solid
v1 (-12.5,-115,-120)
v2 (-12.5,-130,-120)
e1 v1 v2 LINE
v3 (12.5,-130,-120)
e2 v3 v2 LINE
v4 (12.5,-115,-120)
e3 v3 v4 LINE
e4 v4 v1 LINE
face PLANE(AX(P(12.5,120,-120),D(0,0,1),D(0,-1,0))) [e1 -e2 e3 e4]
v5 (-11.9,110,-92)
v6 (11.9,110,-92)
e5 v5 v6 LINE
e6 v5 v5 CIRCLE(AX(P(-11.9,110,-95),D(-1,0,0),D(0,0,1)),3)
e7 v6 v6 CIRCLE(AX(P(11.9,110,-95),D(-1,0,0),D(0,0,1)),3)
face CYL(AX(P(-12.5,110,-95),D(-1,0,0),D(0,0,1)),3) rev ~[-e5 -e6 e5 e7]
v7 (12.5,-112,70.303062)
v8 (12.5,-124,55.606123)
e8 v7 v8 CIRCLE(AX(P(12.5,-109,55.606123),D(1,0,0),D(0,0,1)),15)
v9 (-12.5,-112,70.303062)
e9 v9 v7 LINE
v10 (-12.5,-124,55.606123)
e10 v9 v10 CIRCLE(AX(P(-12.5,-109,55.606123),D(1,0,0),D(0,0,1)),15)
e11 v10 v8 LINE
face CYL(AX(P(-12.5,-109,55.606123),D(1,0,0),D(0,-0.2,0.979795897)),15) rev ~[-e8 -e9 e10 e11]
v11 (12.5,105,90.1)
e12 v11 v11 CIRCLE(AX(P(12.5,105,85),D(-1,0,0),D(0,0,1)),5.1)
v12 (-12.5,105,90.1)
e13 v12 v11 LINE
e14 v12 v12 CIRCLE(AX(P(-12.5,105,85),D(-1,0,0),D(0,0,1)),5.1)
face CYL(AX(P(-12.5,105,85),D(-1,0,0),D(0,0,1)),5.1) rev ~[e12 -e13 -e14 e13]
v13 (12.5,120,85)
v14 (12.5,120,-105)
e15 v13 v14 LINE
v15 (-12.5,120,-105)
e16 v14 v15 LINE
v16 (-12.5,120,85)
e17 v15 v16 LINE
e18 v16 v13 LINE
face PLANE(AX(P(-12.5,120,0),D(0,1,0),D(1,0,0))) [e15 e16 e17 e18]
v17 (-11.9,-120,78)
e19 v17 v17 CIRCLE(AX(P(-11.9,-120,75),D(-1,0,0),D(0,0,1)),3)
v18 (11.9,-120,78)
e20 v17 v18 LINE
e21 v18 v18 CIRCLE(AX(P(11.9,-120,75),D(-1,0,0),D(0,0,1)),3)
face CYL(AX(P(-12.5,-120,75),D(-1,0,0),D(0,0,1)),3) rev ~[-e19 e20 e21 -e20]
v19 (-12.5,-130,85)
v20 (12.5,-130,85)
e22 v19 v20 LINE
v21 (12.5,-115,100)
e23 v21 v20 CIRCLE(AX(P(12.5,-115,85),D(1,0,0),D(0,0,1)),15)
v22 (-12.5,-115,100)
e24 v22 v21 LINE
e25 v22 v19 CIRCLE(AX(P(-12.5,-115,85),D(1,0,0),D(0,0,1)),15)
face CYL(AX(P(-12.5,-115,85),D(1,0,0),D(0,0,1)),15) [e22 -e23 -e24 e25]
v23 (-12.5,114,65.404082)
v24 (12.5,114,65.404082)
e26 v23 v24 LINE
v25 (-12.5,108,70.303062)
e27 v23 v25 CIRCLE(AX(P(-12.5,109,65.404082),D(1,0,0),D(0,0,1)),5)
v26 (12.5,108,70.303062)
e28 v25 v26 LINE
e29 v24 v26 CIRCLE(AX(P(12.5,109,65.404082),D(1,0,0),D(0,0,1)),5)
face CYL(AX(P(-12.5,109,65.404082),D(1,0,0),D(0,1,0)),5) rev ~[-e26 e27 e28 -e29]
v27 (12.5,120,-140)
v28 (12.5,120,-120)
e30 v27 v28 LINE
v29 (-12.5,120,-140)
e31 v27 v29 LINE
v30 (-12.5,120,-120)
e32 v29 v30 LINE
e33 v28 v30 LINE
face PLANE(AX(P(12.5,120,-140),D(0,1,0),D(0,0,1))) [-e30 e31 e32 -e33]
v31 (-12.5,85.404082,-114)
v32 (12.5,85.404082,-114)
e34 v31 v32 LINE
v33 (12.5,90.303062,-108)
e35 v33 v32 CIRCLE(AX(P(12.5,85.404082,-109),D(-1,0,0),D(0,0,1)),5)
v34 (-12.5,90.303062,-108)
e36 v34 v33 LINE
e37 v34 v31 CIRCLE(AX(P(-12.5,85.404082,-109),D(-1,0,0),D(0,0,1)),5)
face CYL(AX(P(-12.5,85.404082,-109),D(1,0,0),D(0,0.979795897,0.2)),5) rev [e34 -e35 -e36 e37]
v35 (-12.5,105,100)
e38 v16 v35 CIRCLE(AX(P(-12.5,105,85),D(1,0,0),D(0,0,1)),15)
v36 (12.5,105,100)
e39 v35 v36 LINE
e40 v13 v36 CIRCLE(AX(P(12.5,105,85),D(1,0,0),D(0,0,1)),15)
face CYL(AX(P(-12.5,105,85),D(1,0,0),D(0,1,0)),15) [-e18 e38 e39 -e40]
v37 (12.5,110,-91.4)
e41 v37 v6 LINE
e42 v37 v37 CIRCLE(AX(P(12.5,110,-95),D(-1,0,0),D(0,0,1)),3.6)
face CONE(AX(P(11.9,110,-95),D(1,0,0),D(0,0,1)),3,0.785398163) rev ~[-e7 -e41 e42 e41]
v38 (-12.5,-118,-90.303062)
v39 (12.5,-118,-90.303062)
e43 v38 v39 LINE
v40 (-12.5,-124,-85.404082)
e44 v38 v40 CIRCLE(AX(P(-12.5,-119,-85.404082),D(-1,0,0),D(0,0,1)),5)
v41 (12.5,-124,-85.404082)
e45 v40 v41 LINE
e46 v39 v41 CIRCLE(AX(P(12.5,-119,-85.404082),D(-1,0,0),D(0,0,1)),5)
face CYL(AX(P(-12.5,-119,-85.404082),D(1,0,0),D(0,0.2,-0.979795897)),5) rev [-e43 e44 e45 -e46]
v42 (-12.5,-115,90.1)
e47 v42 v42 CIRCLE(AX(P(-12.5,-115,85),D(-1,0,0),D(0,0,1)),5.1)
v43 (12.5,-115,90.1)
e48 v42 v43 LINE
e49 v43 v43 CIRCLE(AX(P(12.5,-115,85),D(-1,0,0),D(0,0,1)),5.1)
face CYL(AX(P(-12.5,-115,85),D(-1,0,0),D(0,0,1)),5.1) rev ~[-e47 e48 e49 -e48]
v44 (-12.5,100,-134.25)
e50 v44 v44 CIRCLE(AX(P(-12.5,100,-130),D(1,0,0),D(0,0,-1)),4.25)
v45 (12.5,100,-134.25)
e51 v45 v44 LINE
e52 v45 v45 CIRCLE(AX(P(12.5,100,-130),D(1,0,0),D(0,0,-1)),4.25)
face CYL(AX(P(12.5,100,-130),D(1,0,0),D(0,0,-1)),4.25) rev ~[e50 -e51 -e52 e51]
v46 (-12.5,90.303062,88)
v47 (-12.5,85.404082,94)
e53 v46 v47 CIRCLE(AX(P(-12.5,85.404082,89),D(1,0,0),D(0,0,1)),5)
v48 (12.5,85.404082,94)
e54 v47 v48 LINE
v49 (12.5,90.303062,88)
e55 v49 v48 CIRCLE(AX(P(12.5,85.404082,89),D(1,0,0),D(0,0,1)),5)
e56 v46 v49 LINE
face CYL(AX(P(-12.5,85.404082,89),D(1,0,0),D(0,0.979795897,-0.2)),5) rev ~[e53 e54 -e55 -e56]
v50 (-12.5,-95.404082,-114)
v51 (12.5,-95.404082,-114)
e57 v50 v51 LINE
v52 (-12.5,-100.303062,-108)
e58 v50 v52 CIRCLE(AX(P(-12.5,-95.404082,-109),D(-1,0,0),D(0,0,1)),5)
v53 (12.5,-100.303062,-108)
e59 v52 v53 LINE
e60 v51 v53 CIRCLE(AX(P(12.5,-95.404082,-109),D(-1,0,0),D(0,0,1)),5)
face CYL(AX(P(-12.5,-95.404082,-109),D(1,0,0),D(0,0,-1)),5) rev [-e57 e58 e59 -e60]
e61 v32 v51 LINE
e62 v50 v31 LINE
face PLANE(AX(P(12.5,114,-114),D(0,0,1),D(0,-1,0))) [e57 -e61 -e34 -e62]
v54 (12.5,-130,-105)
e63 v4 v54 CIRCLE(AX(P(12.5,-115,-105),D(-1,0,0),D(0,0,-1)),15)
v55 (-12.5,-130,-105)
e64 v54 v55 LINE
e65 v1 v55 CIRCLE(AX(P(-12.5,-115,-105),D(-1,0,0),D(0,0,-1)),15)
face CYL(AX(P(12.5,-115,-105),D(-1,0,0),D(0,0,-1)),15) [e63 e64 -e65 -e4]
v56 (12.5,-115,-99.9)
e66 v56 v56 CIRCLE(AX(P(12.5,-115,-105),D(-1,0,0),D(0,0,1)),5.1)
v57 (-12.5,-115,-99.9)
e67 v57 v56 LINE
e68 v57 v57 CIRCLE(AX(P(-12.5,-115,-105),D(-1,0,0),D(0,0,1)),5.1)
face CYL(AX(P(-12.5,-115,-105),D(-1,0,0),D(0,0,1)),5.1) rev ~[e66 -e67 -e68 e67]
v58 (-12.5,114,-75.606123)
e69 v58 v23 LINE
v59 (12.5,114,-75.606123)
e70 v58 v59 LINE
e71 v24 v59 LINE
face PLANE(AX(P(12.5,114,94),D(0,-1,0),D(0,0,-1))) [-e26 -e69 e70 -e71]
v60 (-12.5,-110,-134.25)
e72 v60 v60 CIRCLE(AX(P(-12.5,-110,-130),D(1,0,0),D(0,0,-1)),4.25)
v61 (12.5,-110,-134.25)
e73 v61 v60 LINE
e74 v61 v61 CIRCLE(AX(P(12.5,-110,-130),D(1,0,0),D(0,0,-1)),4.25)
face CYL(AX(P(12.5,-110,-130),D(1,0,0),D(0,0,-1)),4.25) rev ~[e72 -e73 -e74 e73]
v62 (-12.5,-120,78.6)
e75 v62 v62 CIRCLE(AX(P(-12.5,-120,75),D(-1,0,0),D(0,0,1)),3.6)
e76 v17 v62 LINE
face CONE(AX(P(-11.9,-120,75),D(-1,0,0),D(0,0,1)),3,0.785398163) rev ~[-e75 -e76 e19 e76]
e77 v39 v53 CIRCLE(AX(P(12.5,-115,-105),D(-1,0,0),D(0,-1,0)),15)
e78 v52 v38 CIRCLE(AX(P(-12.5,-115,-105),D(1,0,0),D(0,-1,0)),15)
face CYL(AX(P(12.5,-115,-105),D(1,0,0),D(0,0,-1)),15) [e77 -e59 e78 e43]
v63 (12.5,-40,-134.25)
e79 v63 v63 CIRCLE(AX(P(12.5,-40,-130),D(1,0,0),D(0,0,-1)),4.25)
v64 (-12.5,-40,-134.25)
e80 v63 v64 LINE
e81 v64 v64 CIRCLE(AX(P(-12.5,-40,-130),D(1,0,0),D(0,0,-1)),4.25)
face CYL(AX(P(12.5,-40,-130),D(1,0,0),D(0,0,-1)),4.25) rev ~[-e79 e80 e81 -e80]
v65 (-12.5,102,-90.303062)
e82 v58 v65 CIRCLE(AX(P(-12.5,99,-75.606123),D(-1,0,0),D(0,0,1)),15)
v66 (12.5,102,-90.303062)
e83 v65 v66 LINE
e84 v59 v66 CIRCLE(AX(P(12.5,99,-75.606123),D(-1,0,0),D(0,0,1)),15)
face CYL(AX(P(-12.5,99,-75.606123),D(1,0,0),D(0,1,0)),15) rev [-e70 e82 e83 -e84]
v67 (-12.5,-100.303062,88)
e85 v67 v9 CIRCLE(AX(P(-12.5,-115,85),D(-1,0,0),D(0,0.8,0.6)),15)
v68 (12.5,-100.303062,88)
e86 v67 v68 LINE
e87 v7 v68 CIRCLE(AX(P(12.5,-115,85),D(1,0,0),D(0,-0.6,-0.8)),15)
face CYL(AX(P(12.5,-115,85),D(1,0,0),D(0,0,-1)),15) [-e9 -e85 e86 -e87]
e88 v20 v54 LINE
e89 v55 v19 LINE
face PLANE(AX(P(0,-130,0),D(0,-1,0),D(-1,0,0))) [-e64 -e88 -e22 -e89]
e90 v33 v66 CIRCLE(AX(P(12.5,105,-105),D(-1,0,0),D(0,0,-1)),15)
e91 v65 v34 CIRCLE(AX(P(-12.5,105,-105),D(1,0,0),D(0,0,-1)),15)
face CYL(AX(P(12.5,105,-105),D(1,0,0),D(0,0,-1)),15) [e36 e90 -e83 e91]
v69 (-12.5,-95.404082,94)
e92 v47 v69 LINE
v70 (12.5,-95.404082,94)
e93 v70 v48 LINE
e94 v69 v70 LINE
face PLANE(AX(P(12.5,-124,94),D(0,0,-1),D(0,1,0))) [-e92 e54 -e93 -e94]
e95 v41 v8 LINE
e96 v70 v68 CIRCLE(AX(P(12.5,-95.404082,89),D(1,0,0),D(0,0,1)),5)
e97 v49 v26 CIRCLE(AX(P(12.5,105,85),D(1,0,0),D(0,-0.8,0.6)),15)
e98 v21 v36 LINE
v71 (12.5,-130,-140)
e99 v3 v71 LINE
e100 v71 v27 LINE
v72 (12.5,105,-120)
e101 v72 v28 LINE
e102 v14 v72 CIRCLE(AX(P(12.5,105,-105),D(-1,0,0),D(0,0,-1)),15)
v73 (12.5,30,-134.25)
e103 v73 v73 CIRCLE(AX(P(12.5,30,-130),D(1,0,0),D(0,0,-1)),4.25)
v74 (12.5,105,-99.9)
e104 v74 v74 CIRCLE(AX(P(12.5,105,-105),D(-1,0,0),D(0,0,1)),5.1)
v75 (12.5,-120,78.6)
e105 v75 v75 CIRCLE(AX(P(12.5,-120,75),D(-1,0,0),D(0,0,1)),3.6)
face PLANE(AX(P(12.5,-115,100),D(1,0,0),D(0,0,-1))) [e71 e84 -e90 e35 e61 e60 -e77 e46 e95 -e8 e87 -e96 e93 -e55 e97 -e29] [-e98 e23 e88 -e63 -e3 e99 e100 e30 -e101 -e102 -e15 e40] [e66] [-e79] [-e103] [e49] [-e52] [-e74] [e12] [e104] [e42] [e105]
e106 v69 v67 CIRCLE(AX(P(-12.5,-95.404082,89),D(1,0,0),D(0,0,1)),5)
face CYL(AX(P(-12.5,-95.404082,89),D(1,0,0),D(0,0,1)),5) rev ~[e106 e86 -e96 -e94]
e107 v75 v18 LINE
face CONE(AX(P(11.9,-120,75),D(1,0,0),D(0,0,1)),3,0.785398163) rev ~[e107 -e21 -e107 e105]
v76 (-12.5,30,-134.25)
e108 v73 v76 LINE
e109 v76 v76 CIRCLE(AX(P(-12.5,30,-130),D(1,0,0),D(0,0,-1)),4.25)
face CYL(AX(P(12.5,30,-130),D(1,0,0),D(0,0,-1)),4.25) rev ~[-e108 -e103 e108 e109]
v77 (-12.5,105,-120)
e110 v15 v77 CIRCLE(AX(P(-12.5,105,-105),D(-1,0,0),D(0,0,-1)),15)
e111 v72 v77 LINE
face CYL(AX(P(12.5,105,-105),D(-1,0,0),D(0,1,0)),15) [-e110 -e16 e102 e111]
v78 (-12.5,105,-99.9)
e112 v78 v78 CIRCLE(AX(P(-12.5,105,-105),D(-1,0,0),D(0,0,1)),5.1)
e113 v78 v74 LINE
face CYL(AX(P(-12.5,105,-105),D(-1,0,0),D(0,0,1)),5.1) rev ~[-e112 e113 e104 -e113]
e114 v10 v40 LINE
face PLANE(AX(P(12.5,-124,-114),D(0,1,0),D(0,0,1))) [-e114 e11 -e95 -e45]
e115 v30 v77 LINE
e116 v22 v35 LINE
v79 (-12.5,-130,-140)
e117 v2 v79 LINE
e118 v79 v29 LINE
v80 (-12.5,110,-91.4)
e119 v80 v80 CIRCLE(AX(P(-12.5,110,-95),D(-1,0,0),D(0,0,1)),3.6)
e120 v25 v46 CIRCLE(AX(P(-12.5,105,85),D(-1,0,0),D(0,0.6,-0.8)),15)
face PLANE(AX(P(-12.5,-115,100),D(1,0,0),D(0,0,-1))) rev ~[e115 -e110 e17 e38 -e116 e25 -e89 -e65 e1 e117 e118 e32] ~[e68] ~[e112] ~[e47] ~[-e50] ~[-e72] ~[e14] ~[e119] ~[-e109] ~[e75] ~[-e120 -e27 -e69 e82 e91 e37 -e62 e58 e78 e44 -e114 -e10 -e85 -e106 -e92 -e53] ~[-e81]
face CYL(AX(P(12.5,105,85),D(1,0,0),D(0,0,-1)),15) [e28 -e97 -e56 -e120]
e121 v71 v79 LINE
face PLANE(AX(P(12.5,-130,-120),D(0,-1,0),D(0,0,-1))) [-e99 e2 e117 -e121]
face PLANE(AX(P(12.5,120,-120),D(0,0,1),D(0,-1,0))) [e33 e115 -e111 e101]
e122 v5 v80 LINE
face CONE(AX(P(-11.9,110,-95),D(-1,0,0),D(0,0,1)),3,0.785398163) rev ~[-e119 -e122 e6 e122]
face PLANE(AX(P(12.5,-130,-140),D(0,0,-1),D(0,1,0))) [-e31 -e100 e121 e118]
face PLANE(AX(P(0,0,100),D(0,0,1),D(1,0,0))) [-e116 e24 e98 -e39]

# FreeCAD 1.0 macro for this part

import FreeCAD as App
import Part
import Sketcher
Q = App.Units.Quantity


def edges_at(feature, points):
    """Names of the edges that pass closest to the given points."""
    edges = feature.Shape.Edges
    near = lambda p: min(range(len(edges)), key=lambda i: edges[i].distToShape(Part.Vertex(*p))[0])
    return sorted({f"Edge{near(p) + 1}" for p in points})

doc = App.newDocument("Part")
body = doc.addObject("PartDesign::Body", "Body")

# Sketch on XY plane
sketch1 = doc.addObject("Sketcher::SketchObject", "Sketch")
body.addObject(sketch1)
sketch1.AttachmentSupport = (doc.XY_Plane, [""])
sketch1.MapMode = "FlatFace"
sketch1.addGeometry([
    Part.LineSegment(App.Vector(-12, 120, 0), App.Vector(-12, -130, 0)),
    Part.LineSegment(App.Vector(-12, -130, 0), App.Vector(12, -130, 0)),
    Part.LineSegment(App.Vector(12, -130, 0), App.Vector(12, 120, 0)),
    Part.LineSegment(App.Vector(12, 120, 0), App.Vector(-12, 120, 0)),
], False)
sketch1.addConstraint([
    Sketcher.Constraint("Coincident", 0, 2, 1, 1),
    Sketcher.Constraint("Coincident", 1, 2, 2, 1),
    Sketcher.Constraint("Coincident", 2, 2, 3, 1),
    Sketcher.Constraint("Coincident", 3, 2, 0, 1),
    Sketcher.Constraint("Vertical", 0),
    Sketcher.Constraint("Horizontal", 1),
    Sketcher.Constraint("Vertical", 2),
    Sketcher.Constraint("Horizontal", 3),
    Sketcher.Constraint("DistanceX", 1, 1, 1, 2, Q("25 mm")),
    Sketcher.Constraint("DistanceY", 0, 2, 0, 1, Q("250 mm")),
    Sketcher.Constraint("DistanceY", -1, 1, 2, 2, Q("120 mm")),
    Sketcher.Constraint("DistanceX", 0, 2, -1, 1, Q("12.5 mm")),
])
pad1 = doc.addObject("PartDesign::Pad", "Pad")
body.addObject(pad1)
pad1.Profile = sketch1
pad1.Type = "TwoLengths"
pad1.Length = 100
pad1.Length2 = 120

# Sketch on YZ plane
sketch2 = doc.addObject("Sketcher::SketchObject", "Sketch001")
body.addObject(sketch2)
sketch2.AttachmentSupport = (doc.YZ_Plane, [""])
sketch2.MapMode = "FlatFace"
sketch2.AttachmentOffset = App.Placement(App.Vector(0, 0, 12.5), App.Rotation())
sketch2.addGeometry([
    Part.LineSegment(App.Vector(114, -114, 0), App.Vector(114, 94, 0)),
    Part.LineSegment(App.Vector(114, 94, 0), App.Vector(-124, 94, 0)),
    Part.LineSegment(App.Vector(-124, 94, 0), App.Vector(-124, -114, 0)),
    Part.LineSegment(App.Vector(-124, -114, 0), App.Vector(114, -114, 0)),
], False)
sketch2.addConstraint([
    Sketcher.Constraint("Coincident", 0, 2, 1, 1),
    Sketcher.Constraint("Coincident", 1, 2, 2, 1),
    Sketcher.Constraint("Coincident", 2, 2, 3, 1),
    Sketcher.Constraint("Coincident", 3, 2, 0, 1),
    Sketcher.Constraint("Vertical", 0),
    Sketcher.Constraint("Horizontal", 1),
    Sketcher.Constraint("Vertical", 2),
    Sketcher.Constraint("Horizontal", 3),
    Sketcher.Constraint("DistanceX", 1, 2, 1, 1, Q("238 mm")),
    Sketcher.Constraint("DistanceY", 0, 1, 0, 2, Q("208 mm")),
    Sketcher.Constraint("DistanceX", -1, 1, 0, 2, Q("114 mm")),
    Sketcher.Constraint("DistanceY", -1, 1, 0, 2, Q("94 mm")),
])
pocket1 = doc.addObject("PartDesign::Pocket", "Pocket")
body.addObject(pocket1)
pocket1.Profile = sketch2
pocket1.Type = "ThroughAll"
doc.recompute()

fillet = doc.addObject("PartDesign::Fillet", "Fillet")
body.addObject(fillet)
fillet.Base = (pocket1, edges_at(pocket1, [
    (0, 120, 100),
    (0, 120, -120),
    (0, -130, 100),
    (0, -130, -120),
]))
fillet.Radius = 15

# Sketch on YZ plane
sketch3 = doc.addObject("Sketcher::SketchObject", "Sketch002")
body.addObject(sketch3)
sketch3.AttachmentSupport = (doc.YZ_Plane, [""])
sketch3.MapMode = "FlatFace"
sketch3.AttachmentOffset = App.Placement(App.Vector(0, 0, 12.5), App.Rotation())
sketch3.addGeometry([
    Part.Circle(App.Vector(105, 85, 0), App.Vector(0, 0, 1), 15),
    Part.Circle(App.Vector(105, -105, 0), App.Vector(0, 0, 1), 15),
    Part.Circle(App.Vector(-115, -105, 0), App.Vector(0, 0, 1), 15),
    Part.Circle(App.Vector(-115, 85, 0), App.Vector(0, 0, 1), 15),
], False)
sketch3.addConstraint([
    Sketcher.Constraint("Equal", 0, 1),
    Sketcher.Constraint("Equal", 1, 2),
    Sketcher.Constraint("Equal", 2, 3),
    Sketcher.Constraint("Horizontal", 1, 3, 2, 3),
    Sketcher.Constraint("Horizontal", 0, 3, 3, 3),
    Sketcher.Constraint("Vertical", 0, 3, 1, 3),
    Sketcher.Constraint("Vertical", 2, 3, 3, 3),
    Sketcher.Constraint("Diameter", 0, Q("30 mm")),
    Sketcher.Constraint("DistanceX", -1, 1, 0, 3, Q("105 mm")),
    Sketcher.Constraint("DistanceY", -1, 1, 0, 3, Q("85 mm")),
    Sketcher.Constraint("DistanceY", 1, 3, -1, 1, Q("105 mm")),
    Sketcher.Constraint("DistanceX", 2, 3, -1, 1, Q("115 mm")),
])
pad2 = doc.addObject("PartDesign::Pad", "Pad001")
body.addObject(pad2)
pad2.Profile = sketch3
pad2.Length = 25
pad2.Reversed = True
doc.recompute()

fillet2 = doc.addObject("PartDesign::Fillet", "Fillet001")
body.addObject(fillet2)
fillet2.Base = (pad2, edges_at(pad2, [
    (0, 93, 94),
    (0, 93, -114),
    (0, -103, -114),
    (0, -103, 94),
    (0, 114, 73),
    (0, -124, -93),
]))
fillet2.Radius = 5

# Sketch on YZ plane
sketch4 = doc.addObject("Sketcher::SketchObject", "Sketch003")
body.addObject(sketch4)
sketch4.AttachmentSupport = (doc.YZ_Plane, [""])
sketch4.MapMode = "FlatFace"
sketch4.AttachmentOffset = App.Placement(App.Vector(0, 0, -12.5), App.Rotation())
sketch4.addGeometry([
    Part.Circle(App.Vector(-115, -105, 0), App.Vector(0, 0, 1), 5),
    Part.Circle(App.Vector(105, -105, 0), App.Vector(0, 0, 1), 5),
    Part.Circle(App.Vector(105, 85, 0), App.Vector(0, 0, 1), 5),
    Part.Circle(App.Vector(-115, 85, 0), App.Vector(0, 0, 1), 5),
], False)
sketch4.addConstraint([
    Sketcher.Constraint("Equal", 0, 1),
    Sketcher.Constraint("Equal", 1, 2),
    Sketcher.Constraint("Equal", 2, 3),
    Sketcher.Constraint("Horizontal", 0, 3, 1, 3),
    Sketcher.Constraint("Horizontal", 2, 3, 3, 3),
    Sketcher.Constraint("Vertical", 1, 3, 2, 3),
    Sketcher.Constraint("Vertical", 0, 3, 3, 3),
    Sketcher.Constraint("Diameter", 0, Q("10.2 mm")),
    Sketcher.Constraint("DistanceX", 0, 3, -1, 1, Q("115 mm")),
    Sketcher.Constraint("DistanceY", 0, 3, -1, 1, Q("105 mm")),
    Sketcher.Constraint("DistanceX", -1, 1, 1, 3, Q("105 mm")),
    Sketcher.Constraint("DistanceY", -1, 1, 2, 3, Q("85 mm")),
])
pocket2 = doc.addObject("PartDesign::Pocket", "Pocket001")
body.addObject(pocket2)
pocket2.Profile = sketch4
pocket2.Type = "ThroughAll"
pocket2.Reversed = True
doc.recompute()

fillet3 = doc.addObject("PartDesign::Fillet", "Fillet002")
body.addObject(fillet3)
fillet3.Base = (pocket2, edges_at(pocket2, [(0, 114, -93), (0, -124, 73)]))
fillet3.Radius = 15

# Sketch on YZ plane
sketch5 = doc.addObject("Sketcher::SketchObject", "Sketch004")
body.addObject(sketch5)
sketch5.AttachmentSupport = (doc.YZ_Plane, [""])
sketch5.MapMode = "FlatFace"
sketch5.AttachmentOffset = App.Placement(App.Vector(0, 0, -12.5), App.Rotation())
sketch5.addGeometry([
    Part.Circle(App.Vector(-120, 75, 0), App.Vector(0, 0, 1), 3),
    Part.Circle(App.Vector(110, -95, 0), App.Vector(0, 0, 1), 3),
], False)
sketch5.addConstraint([
    Sketcher.Constraint("Equal", 0, 1),
    Sketcher.Constraint("Diameter", 0, Q("6 mm")),
    Sketcher.Constraint("DistanceX", 0, 3, 1, 3, Q("230 mm")),
    Sketcher.Constraint("DistanceY", 1, 3, 0, 3, Q("170 mm")),
    Sketcher.Constraint("DistanceX", 0, 3, -1, 1, Q("120 mm")),
    Sketcher.Constraint("DistanceY", -1, 1, 0, 3, Q("75 mm")),
])
pocket3 = doc.addObject("PartDesign::Pocket", "Pocket002")
body.addObject(pocket3)
pocket3.Profile = sketch5
pocket3.Type = "ThroughAll"
pocket3.Reversed = True
doc.recompute()

chamfer = doc.addObject("PartDesign::Chamfer", "Chamfer")
body.addObject(chamfer)
chamfer.Base = (pocket3, edges_at(pocket3, [
    (-12.5, 110, -98),
    (-12.5, -120, 72),
    (12.5, -120, 72),
    (12.5, 110, -98),
]))
chamfer.Size = 0.6

# Sketch on YZ plane
sketch6 = doc.addObject("Sketcher::SketchObject", "Sketch005")
body.addObject(sketch6)
sketch6.AttachmentSupport = (doc.YZ_Plane, [""])
sketch6.MapMode = "FlatFace"
sketch6.AttachmentOffset = App.Placement(App.Vector(0, 0, 12.5), App.Rotation())
sketch6.addGeometry([
    Part.LineSegment(App.Vector(120, -120, 0), App.Vector(-130, -120, 0)),
    Part.LineSegment(App.Vector(-130, -120, 0), App.Vector(-130, -140, 0)),
    Part.LineSegment(App.Vector(-130, -140, 0), App.Vector(120, -140, 0)),
    Part.LineSegment(App.Vector(120, -140, 0), App.Vector(120, -120, 0)),
], False)
sketch6.addConstraint([
    Sketcher.Constraint("Coincident", 0, 2, 1, 1),
    Sketcher.Constraint("Coincident", 1, 2, 2, 1),
    Sketcher.Constraint("Coincident", 2, 2, 3, 1),
    Sketcher.Constraint("Coincident", 3, 2, 0, 1),
    Sketcher.Constraint("Horizontal", 0),
    Sketcher.Constraint("Vertical", 1),
    Sketcher.Constraint("Horizontal", 2),
    Sketcher.Constraint("Vertical", 3),
    Sketcher.Constraint("DistanceY", 1, 2, 1, 1, Q("20 mm")),
    Sketcher.Constraint("DistanceX", 0, 2, 0, 1, Q("250 mm")),
    Sketcher.Constraint("DistanceX", 0, 2, -1, 1, Q("130 mm")),
    Sketcher.Constraint("DistanceY", 0, 2, -1, 1, Q("120 mm")),
])
pad3 = doc.addObject("PartDesign::Pad", "Pad002")
body.addObject(pad3)
pad3.Profile = sketch6
pad3.Length = 25
pad3.Reversed = True

# Sketch on YZ plane
sketch7 = doc.addObject("Sketcher::SketchObject", "Sketch006")
body.addObject(sketch7)
sketch7.AttachmentSupport = (doc.YZ_Plane, [""])
sketch7.MapMode = "FlatFace"
sketch7.AttachmentOffset = App.Placement(App.Vector(0, 0, 12.5), App.Rotation())
sketch7.addGeometry([
    Part.Circle(App.Vector(-110, -130, 0), App.Vector(0, 0, 1), 4.2),
    Part.Circle(App.Vector(-40, -130, 0), App.Vector(0, 0, 1), 4.2),
    Part.Circle(App.Vector(30, -130, 0), App.Vector(0, 0, 1), 4.2),
    Part.Circle(App.Vector(100, -130, 0), App.Vector(0, 0, 1), 4.2),
], False)
sketch7.addConstraint([
    Sketcher.Constraint("Equal", 0, 1),
    Sketcher.Constraint("Equal", 1, 2),
    Sketcher.Constraint("Equal", 2, 3),
    Sketcher.Constraint("Horizontal", 0, 3, 1, 3),
    Sketcher.Constraint("Horizontal", 1, 3, 2, 3),
    Sketcher.Constraint("Horizontal", 2, 3, 3, 3),
    Sketcher.Constraint("Diameter", 0, Q("8.5 mm")),
    Sketcher.Constraint("DistanceX", 0, 3, 1, 3, Q("70 mm")),
    Sketcher.Constraint("DistanceX", 1, 3, 2, 3, Q("70 mm")),
    Sketcher.Constraint("DistanceX", 2, 3, 3, 3, Q("70 mm")),
    Sketcher.Constraint("DistanceX", 0, 3, -1, 1, Q("110 mm")),
    Sketcher.Constraint("DistanceY", 0, 3, -1, 1, Q("130 mm")),
])
pocket4 = doc.addObject("PartDesign::Pocket", "Pocket003")
body.addObject(pocket4)
pocket4.Profile = sketch7
pocket4.Type = "ThroughAll"

doc.recompute()
